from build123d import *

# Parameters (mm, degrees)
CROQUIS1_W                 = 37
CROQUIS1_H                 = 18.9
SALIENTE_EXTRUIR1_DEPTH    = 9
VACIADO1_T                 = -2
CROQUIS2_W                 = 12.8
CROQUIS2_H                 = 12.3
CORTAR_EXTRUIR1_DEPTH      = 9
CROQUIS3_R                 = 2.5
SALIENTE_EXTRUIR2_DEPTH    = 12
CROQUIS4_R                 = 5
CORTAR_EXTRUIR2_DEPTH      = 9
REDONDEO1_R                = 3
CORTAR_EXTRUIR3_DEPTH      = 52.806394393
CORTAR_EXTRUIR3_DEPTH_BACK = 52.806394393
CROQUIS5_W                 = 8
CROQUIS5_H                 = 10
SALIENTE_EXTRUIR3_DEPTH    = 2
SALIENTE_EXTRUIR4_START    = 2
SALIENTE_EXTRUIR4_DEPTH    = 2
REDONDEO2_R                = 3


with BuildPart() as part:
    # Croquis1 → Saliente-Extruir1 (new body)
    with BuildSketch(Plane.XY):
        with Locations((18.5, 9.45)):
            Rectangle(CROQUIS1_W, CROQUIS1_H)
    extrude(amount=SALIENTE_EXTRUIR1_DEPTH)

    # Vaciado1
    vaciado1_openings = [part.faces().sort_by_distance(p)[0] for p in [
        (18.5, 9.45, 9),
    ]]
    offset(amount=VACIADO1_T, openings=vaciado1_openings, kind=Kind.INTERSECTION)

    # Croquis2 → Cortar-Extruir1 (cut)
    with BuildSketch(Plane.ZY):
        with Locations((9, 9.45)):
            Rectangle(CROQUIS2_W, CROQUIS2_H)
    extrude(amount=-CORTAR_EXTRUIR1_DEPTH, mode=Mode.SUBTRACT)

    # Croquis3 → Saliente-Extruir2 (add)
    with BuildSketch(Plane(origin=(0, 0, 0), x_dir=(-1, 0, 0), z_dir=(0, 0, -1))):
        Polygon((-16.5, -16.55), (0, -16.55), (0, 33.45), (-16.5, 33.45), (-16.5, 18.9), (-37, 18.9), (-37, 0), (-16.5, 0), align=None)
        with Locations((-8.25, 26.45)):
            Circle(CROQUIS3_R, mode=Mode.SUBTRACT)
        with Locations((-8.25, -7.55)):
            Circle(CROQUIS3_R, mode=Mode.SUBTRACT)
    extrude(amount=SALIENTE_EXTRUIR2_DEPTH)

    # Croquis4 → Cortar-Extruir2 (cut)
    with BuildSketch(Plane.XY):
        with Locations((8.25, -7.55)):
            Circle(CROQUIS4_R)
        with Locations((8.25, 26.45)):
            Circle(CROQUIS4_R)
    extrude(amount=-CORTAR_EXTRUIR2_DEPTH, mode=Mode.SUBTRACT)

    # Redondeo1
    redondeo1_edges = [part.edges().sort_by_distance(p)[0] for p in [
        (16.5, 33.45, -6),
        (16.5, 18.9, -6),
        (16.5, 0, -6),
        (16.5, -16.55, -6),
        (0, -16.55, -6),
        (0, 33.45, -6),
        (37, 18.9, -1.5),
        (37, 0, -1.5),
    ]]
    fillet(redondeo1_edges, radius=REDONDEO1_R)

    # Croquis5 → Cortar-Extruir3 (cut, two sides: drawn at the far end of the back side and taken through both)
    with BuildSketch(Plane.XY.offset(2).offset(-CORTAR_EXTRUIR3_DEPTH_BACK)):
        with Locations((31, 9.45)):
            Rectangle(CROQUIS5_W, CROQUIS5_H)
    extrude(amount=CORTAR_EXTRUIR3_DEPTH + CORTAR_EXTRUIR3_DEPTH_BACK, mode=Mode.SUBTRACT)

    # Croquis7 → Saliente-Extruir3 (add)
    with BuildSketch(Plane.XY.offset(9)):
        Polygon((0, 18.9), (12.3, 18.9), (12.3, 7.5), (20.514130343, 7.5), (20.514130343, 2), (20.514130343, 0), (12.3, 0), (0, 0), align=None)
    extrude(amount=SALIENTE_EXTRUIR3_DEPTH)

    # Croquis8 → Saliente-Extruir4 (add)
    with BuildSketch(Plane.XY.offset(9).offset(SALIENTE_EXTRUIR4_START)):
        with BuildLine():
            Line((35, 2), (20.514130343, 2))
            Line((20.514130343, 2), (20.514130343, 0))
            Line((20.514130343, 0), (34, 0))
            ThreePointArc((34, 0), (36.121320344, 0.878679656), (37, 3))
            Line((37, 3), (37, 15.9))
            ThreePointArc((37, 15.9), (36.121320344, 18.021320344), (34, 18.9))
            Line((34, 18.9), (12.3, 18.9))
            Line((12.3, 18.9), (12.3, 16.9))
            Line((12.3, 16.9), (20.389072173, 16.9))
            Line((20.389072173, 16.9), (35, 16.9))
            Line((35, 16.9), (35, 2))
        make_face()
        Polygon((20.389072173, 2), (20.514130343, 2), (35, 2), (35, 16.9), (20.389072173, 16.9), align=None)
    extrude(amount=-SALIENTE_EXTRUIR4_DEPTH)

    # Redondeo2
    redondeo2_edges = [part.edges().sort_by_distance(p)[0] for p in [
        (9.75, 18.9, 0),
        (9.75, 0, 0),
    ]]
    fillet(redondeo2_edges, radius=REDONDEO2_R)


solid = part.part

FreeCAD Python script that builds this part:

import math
import FreeCAD as App
import Part
import Sketcher
from FreeCAD import Vector


def edges_at(feature, points):
    """Names of the edges that pass closest to the given points."""
    edges = feature.Shape.Edges
    near = lambda p: min(range(len(edges)), key=lambda i: edges[i].distToShape(Part.Vertex(*p))[0])
    return sorted({f"Edge{near(p) + 1}" for p in points})


def faces_at(feature, points):
    """Names of the faces that lie closest to the given points."""
    faces = feature.Shape.Faces
    near = lambda p: min(range(len(faces)), key=lambda i: faces[i].distToShape(Part.Vertex(*p))[0])
    return sorted({f"Face{near(p) + 1}" for p in points})

doc = App.newDocument("Part")
body = doc.addObject("PartDesign::Body", "Body")

# Sketch on XY plane
sketch1 = body.newObject("Sketcher::SketchObject", "Sketch")
sketch1.AttachmentSupport = (doc.getObject("XY_Plane"), [""])
sketch1.MapMode = "FlatFace"
sketch1.addGeometry(Part.LineSegment(Vector(0, 19, 0), Vector(0, 0, 0)), False)
sketch1.addGeometry(Part.LineSegment(Vector(0, 0, 0), Vector(37, 0, 0)), False)
sketch1.addGeometry(Part.LineSegment(Vector(37, 0, 0), Vector(37, 19, 0)), False)
sketch1.addGeometry(Part.LineSegment(Vector(37, 19, 0), Vector(0, 19, 0)), False)
sketch1.addConstraint(Sketcher.Constraint("Coincident", 0, 2, 1, 1))
sketch1.addConstraint(Sketcher.Constraint("Coincident", 1, 2, 2, 1))
sketch1.addConstraint(Sketcher.Constraint("Coincident", 2, 2, 3, 1))
sketch1.addConstraint(Sketcher.Constraint("Coincident", 3, 2, 0, 1))
sketch1.addConstraint(Sketcher.Constraint("Vertical", 0))
sketch1.addConstraint(Sketcher.Constraint("Horizontal", 1))
sketch1.addConstraint(Sketcher.Constraint("Vertical", 2))
sketch1.addConstraint(Sketcher.Constraint("Horizontal", 3))
sketch1.addConstraint(Sketcher.Constraint("Coincident", 0, 2, -1, 1))
sketch1.addConstraint(Sketcher.Constraint("DistanceX", 1, 1, 1, 2, 37.0))
sketch1.addConstraint(Sketcher.Constraint("DistanceY", 0, 2, 0, 1, 18.9))
pad1 = body.newObject("PartDesign::Pad", "Pad")
pad1.Profile = sketch1
pad1.Length = 9
doc.recompute()

thickness = body.newObject("PartDesign::Thickness", "Thickness")
thickness.Base = (pad1, faces_at(pad1, [(18.5, 9.45, 9)]))
thickness.Value = 2
thickness.Reversed = True
thickness.Join = "Intersection"

# Sketch on YZ plane
sketch2 = body.newObject("Sketcher::SketchObject", "Sketch001")
sketch2.AttachmentSupport = (doc.getObject("YZ_Plane"), [""])
sketch2.MapMode = "FlatFace"
sketch2.addGeometry(Part.LineSegment(Vector(16, 3, 0), Vector(3, 3, 0)), False)
sketch2.addGeometry(Part.LineSegment(Vector(3, 3, 0), Vector(3, 15, 0)), False)
sketch2.addGeometry(Part.LineSegment(Vector(3, 15, 0), Vector(16, 15, 0)), False)
sketch2.addGeometry(Part.LineSegment(Vector(16, 15, 0), Vector(16, 3, 0)), False)
sketch2.addConstraint(Sketcher.Constraint("Coincident", 0, 2, 1, 1))
sketch2.addConstraint(Sketcher.Constraint("Coincident", 1, 2, 2, 1))
sketch2.addConstraint(Sketcher.Constraint("Coincident", 2, 2, 3, 1))
sketch2.addConstraint(Sketcher.Constraint("Coincident", 3, 2, 0, 1))
sketch2.addConstraint(Sketcher.Constraint("Horizontal", 0))
sketch2.addConstraint(Sketcher.Constraint("Vertical", 1))
sketch2.addConstraint(Sketcher.Constraint("Horizontal", 2))
sketch2.addConstraint(Sketcher.Constraint("Vertical", 3))
sketch2.addConstraint(Sketcher.Constraint("DistanceX", 0, 2, 0, 1, 12.3))
sketch2.addConstraint(Sketcher.Constraint("DistanceY", 1, 1, 1, 2, 12.8))
sketch2.addConstraint(Sketcher.Constraint("DistanceX", -1, 1, 0, 2, 3.3))
sketch2.addConstraint(Sketcher.Constraint("DistanceY", -1, 1, 0, 2, 2.6))
pocket1 = body.newObject("PartDesign::Pocket", "Pocket")
pocket1.Profile = sketch2
pocket1.Length = 9
pocket1.Reversed = True

# Sketch on XY plane
sketch3 = body.newObject("Sketcher::SketchObject", "Sketch002")
sketch3.AttachmentSupport = (doc.getObject("XY_Plane"), [""])
sketch3.MapMode = "FlatFace"
sketch3.addGeometry(Part.LineSegment(Vector(16.5, -16.6, 0), Vector(0, -16.6, 0)), False)
sketch3.addGeometry(Part.LineSegment(Vector(0, -16.6, 0), Vector(0, 33.5, 0)), False)
sketch3.addGeometry(Part.LineSegment(Vector(0, 33.5, 0), Vector(16.5, 33.5, 0)), False)
sketch3.addGeometry(Part.LineSegment(Vector(16.5, 33.5, 0), Vector(16.5, 18.9, 0)), False)
sketch3.addGeometry(Part.LineSegment(Vector(16.5, 18.9, 0), Vector(37, 18.9, 0)), False)
sketch3.addGeometry(Part.LineSegment(Vector(37, 18.9, 0), Vector(37, 0, 0)), False)
sketch3.addGeometry(Part.LineSegment(Vector(37, 0, 0), Vector(16.5, 0, 0)), False)
sketch3.addGeometry(Part.LineSegment(Vector(16.5, 0, 0), Vector(16.5, -16.6, 0)), False)
sketch3.addGeometry(Part.Circle(Vector(8.2, -7.5, 0), Vector(0, 0, 1), 2.5), False)
sketch3.addGeometry(Part.Circle(Vector(8.2, 26.4, 0), Vector(0, 0, 1), 2.5), False)
sketch3.addConstraint(Sketcher.Constraint("Coincident", 0, 2, 1, 1))
sketch3.addConstraint(Sketcher.Constraint("Coincident", 1, 2, 2, 1))
sketch3.addConstraint(Sketcher.Constraint("Coincident", 2, 2, 3, 1))
sketch3.addConstraint(Sketcher.Constraint("Coincident", 3, 2, 4, 1))
sketch3.addConstraint(Sketcher.Constraint("Coincident", 4, 2, 5, 1))
sketch3.addConstraint(Sketcher.Constraint("Coincident", 5, 2, 6, 1))
sketch3.addConstraint(Sketcher.Constraint("Coincident", 6, 2, 7, 1))
sketch3.addConstraint(Sketcher.Constraint("Coincident", 7, 2, 0, 1))
sketch3.addConstraint(Sketcher.Constraint("Horizontal", 0))
sketch3.addConstraint(Sketcher.Constraint("Vertical", 1))
sketch3.addConstraint(Sketcher.Constraint("Horizontal", 2))
sketch3.addConstraint(Sketcher.Constraint("Vertical", 3))
sketch3.addConstraint(Sketcher.Constraint("Horizontal", 4))
sketch3.addConstraint(Sketcher.Constraint("Vertical", 5))
sketch3.addConstraint(Sketcher.Constraint("Horizontal", 6))
sketch3.addConstraint(Sketcher.Constraint("Vertical", 7))
sketch3.addConstraint(Sketcher.Constraint("Equal", 8, 9))
sketch3.addConstraint(Sketcher.Constraint("PointOnObject", 0, 2, -2))
sketch3.addConstraint(Sketcher.Constraint("PointOnObject", 5, 2, -1))
sketch3.addConstraint(Sketcher.Constraint("Vertical", 8, 3, 9, 3))
sketch3.addConstraint(Sketcher.Constraint("Vertical", 3, 2, 6, 2))
sketch3.addConstraint(Sketcher.Constraint("Diameter", 8, 5.0))
sketch3.addConstraint(Sketcher.Constraint("DistanceY", 1, 1, 1, 2, 50.0))
sketch3.addConstraint(Sketcher.Constraint("DistanceX", 0, 2, 0, 1, 16.5))
sketch3.addConstraint(Sketcher.Constraint("DistanceX", 4, 1, 4, 2, 20.5))
sketch3.addConstraint(Sketcher.Constraint("DistanceY", 5, 2, 5, 1, 18.9))
sketch3.addConstraint(Sketcher.Constraint("DistanceY", 8, 3, 9, 3, 34.0))
sketch3.addConstraint(Sketcher.Constraint("DistanceY", 0, 2, 8, 3, 9.0))
sketch3.addConstraint(Sketcher.Constraint("DistanceY", 3, 2, 3, 1, 14.55))
sketch3.addConstraint(Sketcher.Constraint("DistanceX", -1, 1, 8, 3, 8.25))
pad2 = body.newObject("PartDesign::Pad", "Pad001")
pad2.Profile = sketch3
pad2.Length = 12
pad2.Reversed = True

# Sketch on XY plane
sketch4 = body.newObject("Sketcher::SketchObject", "Sketch003")
sketch4.AttachmentSupport = (doc.getObject("XY_Plane"), [""])
sketch4.MapMode = "FlatFace"
sketch4.addGeometry(Part.Circle(Vector(8, -8, 0), Vector(0, 0, 1), 5), False)
sketch4.addGeometry(Part.Circle(Vector(8, 26, 0), Vector(0, 0, 1), 5), False)
sketch4.addConstraint(Sketcher.Constraint("Equal", 0, 1))
sketch4.addConstraint(Sketcher.Constraint("Vertical", 0, 3, 1, 3))
sketch4.addConstraint(Sketcher.Constraint("Diameter", 0, 10.0))
sketch4.addConstraint(Sketcher.Constraint("DistanceY", 0, 3, 1, 3, 34.0))
sketch4.addConstraint(Sketcher.Constraint("DistanceX", -1, 1, 0, 3, 8.25))
sketch4.addConstraint(Sketcher.Constraint("DistanceY", 0, 3, -1, 1, 7.55))
pocket2 = body.newObject("PartDesign::Pocket", "Pocket001")
pocket2.Profile = sketch4
pocket2.Length = 9
doc.recompute()

fillet = body.newObject("PartDesign::Fillet", "Fillet")
fillet.Base = (pocket2, edges_at(pocket2, [
    (16.5, 33.45, -6),
    (16.5, 18.9, -6),
    (16.5, 0, -6),
    (16.5, -16.55, -6),
    (0, -16.55, -6),
    (0, 33.45, -6),
    (37, 18.9, -1.5),
    (37, 0, -1.5),
]))
fillet.Radius = 3

# Sketch on XY plane
sketch5 = body.newObject("Sketcher::SketchObject", "Sketch004")
sketch5.AttachmentSupport = (doc.getObject("XY_Plane"), [""])
sketch5.MapMode = "FlatFace"
sketch5.AttachmentOffset = App.Placement(Vector(0, 0, 2), App.Rotation())
sketch5.addGeometry(Part.LineSegment(Vector(27, 14, 0), Vector(27, 4, 0)), False)
sketch5.addGeometry(Part.LineSegment(Vector(27, 4, 0), Vector(35, 4, 0)), False)
sketch5.addGeometry(Part.LineSegment(Vector(35, 4, 0), Vector(35, 14, 0)), False)
sketch5.addGeometry(Part.LineSegment(Vector(35, 14, 0), Vector(27, 14, 0)), False)
sketch5.addConstraint(Sketcher.Constraint("Coincident", 0, 2, 1, 1))
sketch5.addConstraint(Sketcher.Constraint("Coincident", 1, 2, 2, 1))
sketch5.addConstraint(Sketcher.Constraint("Coincident", 2, 2, 3, 1))
sketch5.addConstraint(Sketcher.Constraint("Coincident", 3, 2, 0, 1))
sketch5.addConstraint(Sketcher.Constraint("Vertical", 0))
sketch5.addConstraint(Sketcher.Constraint("Horizontal", 1))
sketch5.addConstraint(Sketcher.Constraint("Vertical", 2))
sketch5.addConstraint(Sketcher.Constraint("Horizontal", 3))
sketch5.addConstraint(Sketcher.Constraint("DistanceX", 1, 1, 1, 2, 8.0))
sketch5.addConstraint(Sketcher.Constraint("DistanceY", 0, 2, 0, 1, 10.0))
sketch5.addConstraint(Sketcher.Constraint("DistanceX", -1, 1, 0, 2, 27.0))
sketch5.addConstraint(Sketcher.Constraint("DistanceY", -1, 1, 0, 2, 4.45))
pocket3 = body.newObject("PartDesign::Pocket", "Pocket002")
pocket3.Profile = sketch5
pocket3.Type = "ThroughAll"
pocket3.Midplane = True

# Sketch on XY plane
sketch6 = body.newObject("Sketcher::SketchObject", "Sketch005")
sketch6.AttachmentSupport = (doc.getObject("XY_Plane"), [""])
sketch6.MapMode = "FlatFace"
sketch6.AttachmentOffset = App.Placement(Vector(0, 0, 9), App.Rotation())
sketch6.addGeometry(Part.LineSegment(Vector(12, 19, 0), Vector(0, 19, 0)), False)
sketch6.addGeometry(Part.LineSegment(Vector(0, 19, 0), Vector(0, 0, 0)), False)
sketch6.addGeometry(Part.LineSegment(Vector(0, 0, 0), Vector(21, 0, 0)), False)
sketch6.addGeometry(Part.LineSegment(Vector(21, 0, 0), Vector(21, 8, 0)), False)
sketch6.addGeometry(Part.LineSegment(Vector(21, 8, 0), Vector(12, 8, 0)), False)
sketch6.addGeometry(Part.LineSegment(Vector(12, 8, 0), Vector(12, 19, 0)), False)
sketch6.addConstraint(Sketcher.Constraint("Coincident", 0, 2, 1, 1))
sketch6.addConstraint(Sketcher.Constraint("Coincident", 1, 2, 2, 1))
sketch6.addConstraint(Sketcher.Constraint("Coincident", 2, 2, 3, 1))
sketch6.addConstraint(Sketcher.Constraint("Coincident", 3, 2, 4, 1))
sketch6.addConstraint(Sketcher.Constraint("Coincident", 4, 2, 5, 1))
sketch6.addConstraint(Sketcher.Constraint("Coincident", 5, 2, 0, 1))
sketch6.addConstraint(Sketcher.Constraint("Horizontal", 0))
sketch6.addConstraint(Sketcher.Constraint("Vertical", 1))
sketch6.addConstraint(Sketcher.Constraint("Horizontal", 2))
sketch6.addConstraint(Sketcher.Constraint("Vertical", 3))
sketch6.addConstraint(Sketcher.Constraint("Horizontal", 4))
sketch6.addConstraint(Sketcher.Constraint("Vertical", 5))
sketch6.addConstraint(Sketcher.Constraint("Coincident", 1, 2, -1, 1))
sketch6.addConstraint(Sketcher.Constraint("DistanceX", 0, 2, 0, 1, 12.3))
sketch6.addConstraint(Sketcher.Constraint("DistanceY", 1, 2, 1, 1, 18.9))
sketch6.addConstraint(Sketcher.Constraint("DistanceY", 3, 1, 3, 2, 7.5))
sketch6.addConstraint(Sketcher.Constraint("DistanceX", 2, 1, 2, 2, 20.51413))
pad3 = body.newObject("PartDesign::Pad", "Pad002")
pad3.Profile = sketch6
pad3.Length = 2

# Sketch on XY plane
sketch7 = body.newObject("Sketcher::SketchObject", "Sketch006")
sketch7.AttachmentSupport = (doc.getObject("XY_Plane"), [""])
sketch7.MapMode = "FlatFace"
sketch7.AttachmentOffset = App.Placement(Vector(0, 0, 11), App.Rotation())
sketch7.addGeometry(Part.LineSegment(Vector(20.51, 2, 0), Vector(20.51, 0, 0)), False)
sketch7.addGeometry(Part.LineSegment(Vector(20.51, 0, 0), Vector(34, 0, 0)), False)
sketch7.addGeometry(Part.ArcOfCircle(Part.Circle(Vector(34, 3, 0), Vector(0, 0, 1), 3), math.radians(-90), math.radians(0)), False)
sketch7.addGeometry(Part.LineSegment(Vector(37, 3, 0), Vector(37, 15.9, 0)), False)
sketch7.addGeometry(Part.ArcOfCircle(Part.Circle(Vector(34, 15.9, 0), Vector(0, 0, 1), 3), math.radians(0), math.radians(90)), False)
sketch7.addGeometry(Part.LineSegment(Vector(34, 18.9, 0), Vector(12.3, 18.9, 0)), False)
sketch7.addGeometry(Part.LineSegment(Vector(12.3, 18.9, 0), Vector(12.3, 16.9, 0)), False)
sketch7.addGeometry(Part.LineSegment(Vector(12.3, 16.9, 0), Vector(20.39, 16.9, 0)), False)
sketch7.addGeometry(Part.LineSegment(Vector(20.39, 16.9, 0), Vector(20.39, 2, 0)), False)
sketch7.addGeometry(Part.LineSegment(Vector(20.39, 2, 0), Vector(20.51, 2, 0)), False)
sketch7.addConstraint(Sketcher.Constraint("Coincident", 0, 2, 1, 1))
sketch7.addConstraint(Sketcher.Constraint("Tangent", 1, 2, 2, 1))
sketch7.addConstraint(Sketcher.Constraint("Tangent", 2, 2, 3, 1))
sketch7.addConstraint(Sketcher.Constraint("Tangent", 3, 2, 4, 1))
sketch7.addConstraint(Sketcher.Constraint("Tangent", 4, 2, 5, 1))
sketch7.addConstraint(Sketcher.Constraint("Coincident", 5, 2, 6, 1))
sketch7.addConstraint(Sketcher.Constraint("Coincident", 6, 2, 7, 1))
sketch7.addConstraint(Sketcher.Constraint("Coincident", 7, 2, 8, 1))
sketch7.addConstraint(Sketcher.Constraint("Coincident", 8, 2, 9, 1))
sketch7.addConstraint(Sketcher.Constraint("Coincident", 9, 2, 0, 1))
sketch7.addConstraint(Sketcher.Constraint("Vertical", 0))
sketch7.addConstraint(Sketcher.Constraint("Horizontal", 1))
sketch7.addConstraint(Sketcher.Constraint("Vertical", 3))
sketch7.addConstraint(Sketcher.Constraint("Horizontal", 5))
sketch7.addConstraint(Sketcher.Constraint("Vertical", 6))
sketch7.addConstraint(Sketcher.Constraint("Horizontal", 7))
sketch7.addConstraint(Sketcher.Constraint("Vertical", 8))
sketch7.addConstraint(Sketcher.Constraint("Horizontal", 9))
sketch7.addConstraint(Sketcher.Constraint("Equal", 2, 4))
sketch7.addConstraint(Sketcher.Constraint("PointOnObject", 0, 2, -1))
sketch7.addConstraint(Sketcher.Constraint("Equal", 0, 6))
sketch7.addConstraint(Sketcher.Constraint("Radius", 2, 3.0))
sketch7.addConstraint(Sketcher.Constraint("DistanceY", 0, 2, 0, 1, 2.0))
sketch7.addConstraint(Sketcher.Constraint("DistanceX", 5, 2, 5, 1, 21.7))
sketch7.addConstraint(Sketcher.Constraint("DistanceY", 3, 1, 3, 2, 12.9))
sketch7.addConstraint(Sketcher.Constraint("DistanceX", -1, 1, 2, 3, 34.0))
sketch7.addConstraint(Sketcher.Constraint("DistanceX", 1, 1, 1, 2, 13.48587))
sketch7.addConstraint(Sketcher.Constraint("DistanceX", 9, 1, 9, 2, 0.125058))
pad4 = body.newObject("PartDesign::Pad", "Pad003")
pad4.Profile = sketch7
pad4.Length = 2
pad4.Reversed = True
doc.recompute()

fillet2 = body.newObject("PartDesign::Fillet", "Fillet001")
fillet2.Base = (pad4, edges_at(pad4, [(9.75, 18.9, 0), (9.75, 0, 0)]))
fillet2.Radius = 3

doc.recompute()
